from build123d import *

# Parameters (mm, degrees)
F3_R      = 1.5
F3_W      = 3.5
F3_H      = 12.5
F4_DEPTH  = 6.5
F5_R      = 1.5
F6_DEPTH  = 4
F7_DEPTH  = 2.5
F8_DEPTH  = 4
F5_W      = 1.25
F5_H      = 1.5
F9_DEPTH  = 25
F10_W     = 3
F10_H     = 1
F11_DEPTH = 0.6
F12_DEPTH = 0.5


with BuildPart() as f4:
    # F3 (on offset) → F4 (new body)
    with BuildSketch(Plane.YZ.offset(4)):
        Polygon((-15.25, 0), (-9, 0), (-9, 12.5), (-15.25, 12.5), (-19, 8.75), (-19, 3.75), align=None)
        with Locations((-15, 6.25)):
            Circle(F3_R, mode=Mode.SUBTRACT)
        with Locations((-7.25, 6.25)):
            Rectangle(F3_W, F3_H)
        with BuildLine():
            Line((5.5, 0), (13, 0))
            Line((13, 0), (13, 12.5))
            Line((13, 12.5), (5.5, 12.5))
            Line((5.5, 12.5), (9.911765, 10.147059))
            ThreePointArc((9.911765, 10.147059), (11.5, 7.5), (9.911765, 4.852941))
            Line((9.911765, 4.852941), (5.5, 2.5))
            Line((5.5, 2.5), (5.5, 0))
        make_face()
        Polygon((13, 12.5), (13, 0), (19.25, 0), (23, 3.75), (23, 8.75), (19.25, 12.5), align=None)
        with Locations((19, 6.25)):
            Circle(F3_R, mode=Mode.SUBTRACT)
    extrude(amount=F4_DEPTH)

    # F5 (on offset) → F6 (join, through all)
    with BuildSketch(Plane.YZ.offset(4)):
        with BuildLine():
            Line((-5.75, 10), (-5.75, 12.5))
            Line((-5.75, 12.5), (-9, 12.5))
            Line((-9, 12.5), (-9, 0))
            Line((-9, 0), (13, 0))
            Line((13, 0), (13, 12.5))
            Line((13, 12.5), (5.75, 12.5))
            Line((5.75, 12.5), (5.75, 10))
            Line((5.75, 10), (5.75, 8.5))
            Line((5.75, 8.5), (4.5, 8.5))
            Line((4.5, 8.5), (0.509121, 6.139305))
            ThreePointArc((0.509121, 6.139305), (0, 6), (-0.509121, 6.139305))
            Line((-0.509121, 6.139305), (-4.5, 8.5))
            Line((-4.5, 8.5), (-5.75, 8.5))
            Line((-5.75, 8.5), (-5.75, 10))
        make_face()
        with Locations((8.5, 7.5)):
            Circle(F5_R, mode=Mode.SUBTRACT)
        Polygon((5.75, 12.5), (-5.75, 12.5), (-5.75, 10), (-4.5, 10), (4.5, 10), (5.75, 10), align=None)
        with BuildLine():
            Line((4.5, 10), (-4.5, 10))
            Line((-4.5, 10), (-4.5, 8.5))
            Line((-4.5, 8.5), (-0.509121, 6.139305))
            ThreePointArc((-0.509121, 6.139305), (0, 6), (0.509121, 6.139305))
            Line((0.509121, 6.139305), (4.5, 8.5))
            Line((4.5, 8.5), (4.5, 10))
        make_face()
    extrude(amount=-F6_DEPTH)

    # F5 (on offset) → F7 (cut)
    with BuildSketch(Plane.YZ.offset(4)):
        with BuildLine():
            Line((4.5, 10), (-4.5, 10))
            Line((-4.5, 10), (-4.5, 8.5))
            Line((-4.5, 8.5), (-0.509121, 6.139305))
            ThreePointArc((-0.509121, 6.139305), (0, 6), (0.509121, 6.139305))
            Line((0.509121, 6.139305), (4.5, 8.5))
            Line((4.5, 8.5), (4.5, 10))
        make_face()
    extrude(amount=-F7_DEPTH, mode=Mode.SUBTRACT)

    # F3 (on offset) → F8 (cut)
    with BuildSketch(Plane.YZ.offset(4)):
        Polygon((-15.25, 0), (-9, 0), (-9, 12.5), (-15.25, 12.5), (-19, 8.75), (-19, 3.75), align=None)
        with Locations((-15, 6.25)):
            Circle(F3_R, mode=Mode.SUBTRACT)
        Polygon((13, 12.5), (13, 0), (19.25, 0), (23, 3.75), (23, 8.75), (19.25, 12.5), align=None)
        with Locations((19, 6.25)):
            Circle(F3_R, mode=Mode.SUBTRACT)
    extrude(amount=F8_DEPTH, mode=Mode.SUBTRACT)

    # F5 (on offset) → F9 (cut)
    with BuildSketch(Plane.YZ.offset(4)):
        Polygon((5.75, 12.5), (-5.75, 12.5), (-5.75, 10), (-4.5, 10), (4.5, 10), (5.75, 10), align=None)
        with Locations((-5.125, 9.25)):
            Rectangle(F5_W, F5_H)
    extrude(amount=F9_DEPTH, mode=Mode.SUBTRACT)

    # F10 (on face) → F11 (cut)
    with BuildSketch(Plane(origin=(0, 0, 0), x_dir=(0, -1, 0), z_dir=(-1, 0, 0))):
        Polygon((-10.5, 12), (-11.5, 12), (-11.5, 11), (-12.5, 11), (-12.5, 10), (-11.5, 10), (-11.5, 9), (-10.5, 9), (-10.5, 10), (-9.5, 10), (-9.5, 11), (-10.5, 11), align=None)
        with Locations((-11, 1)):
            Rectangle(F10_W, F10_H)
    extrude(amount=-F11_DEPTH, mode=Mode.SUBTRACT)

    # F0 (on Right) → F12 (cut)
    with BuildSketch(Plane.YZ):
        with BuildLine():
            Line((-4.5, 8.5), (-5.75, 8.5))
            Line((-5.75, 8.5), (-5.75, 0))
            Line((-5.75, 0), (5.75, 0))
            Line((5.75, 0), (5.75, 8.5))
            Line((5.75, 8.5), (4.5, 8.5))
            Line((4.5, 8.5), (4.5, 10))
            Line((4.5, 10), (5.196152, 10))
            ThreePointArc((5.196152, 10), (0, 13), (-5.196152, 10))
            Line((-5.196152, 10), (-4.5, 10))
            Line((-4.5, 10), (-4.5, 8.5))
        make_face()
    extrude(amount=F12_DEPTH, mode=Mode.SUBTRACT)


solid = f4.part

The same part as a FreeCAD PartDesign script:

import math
import FreeCAD as App
import Part
import Sketcher
from FreeCAD import Vector
Q = App.Units.Quantity


def add_polygon(sketch, points):
    """Adds a closed chain of lines whose ends are joined by coincident constraints."""
    first, n = sketch.GeometryCount, len(points)
    for a, b in zip(points, points[1:] + points[:1]):
        sketch.addGeometry(Part.LineSegment(App.Vector(*a, 0), App.Vector(*b, 0)), False)
    for i in range(n):
        sketch.addConstraint(Sketcher.Constraint("Coincident", first + i, 2, first + (i + 1) % n, 1))

doc = App.newDocument("Part")
body = doc.addObject("PartDesign::Body", "Body")
body.AllowCompound = True

sketch1 = body.newObject("Sketcher::SketchObject", "Sketch")
sketch1.AttachmentSupport = (doc.getObject("YZ_Plane"), [""])
sketch1.MapMode = "FlatFace"
sketch1.AttachmentOffset = App.Placement(Vector(0, 0, 4), App.Rotation())
add_polygon(sketch1, [(-15.2, 0), (-5.5, 0), (-5.5, 12.5), (-15.2, 12.5), (-19, 8.8), (-19, 3.8)])
sketch1.addGeometry(Part.Circle(Vector(-15, 6.2, 0), Vector(0, 0, 1), 1.5), False)
sketch1.addGeometry(Part.LineSegment(Vector(5.5, 0, 0), Vector(19.2, 0, 0)), False)
sketch1.addGeometry(Part.LineSegment(Vector(19.2, 0, 0), Vector(23, 3.8, 0)), False)
sketch1.addGeometry(Part.LineSegment(Vector(23, 3.8, 0), Vector(23, 8.8, 0)), False)
sketch1.addGeometry(Part.LineSegment(Vector(23, 8.8, 0), Vector(19.2, 12.5, 0)), False)
sketch1.addGeometry(Part.LineSegment(Vector(19.2, 12.5, 0), Vector(5.5, 12.5, 0)), False)
sketch1.addGeometry(Part.LineSegment(Vector(5.5, 12.5, 0), Vector(9.9, 10.1, 0)), False)
sketch1.addGeometry(Part.ArcOfCircle(Part.Circle(Vector(8.5, 7.5, 0), Vector(0, 0, 1), 3), math.radians(-62), math.radians(62)), False)
sketch1.addGeometry(Part.LineSegment(Vector(9.9, 4.9, 0), Vector(5.5, 2.5, 0)), False)
sketch1.addGeometry(Part.LineSegment(Vector(5.5, 2.5, 0), Vector(5.5, 0, 0)), False)
sketch1.addGeometry(Part.Circle(Vector(19, 6.2, 0), Vector(0, 0, 1), 1.5), False)
sketch1.addConstraint(Sketcher.Constraint("Coincident", 7, 2, 8, 1))
sketch1.addConstraint(Sketcher.Constraint("Coincident", 8, 2, 9, 1))
sketch1.addConstraint(Sketcher.Constraint("Coincident", 9, 2, 10, 1))
sketch1.addConstraint(Sketcher.Constraint("Coincident", 10, 2, 11, 1))
sketch1.addConstraint(Sketcher.Constraint("Coincident", 11, 2, 12, 1))
sketch1.addConstraint(Sketcher.Constraint("Tangent", 12, 2, 13, 2))
sketch1.addConstraint(Sketcher.Constraint("Tangent", 13, 1, 14, 1))
sketch1.addConstraint(Sketcher.Constraint("Coincident", 14, 2, 15, 1))
sketch1.addConstraint(Sketcher.Constraint("Coincident", 15, 2, 7, 1))
sketch1.addConstraint(Sketcher.Constraint("Horizontal", 0))
sketch1.addConstraint(Sketcher.Constraint("Vertical", 1))
sketch1.addConstraint(Sketcher.Constraint("Horizontal", 2))
sketch1.addConstraint(Sketcher.Constraint("Vertical", 4))
sketch1.addConstraint(Sketcher.Constraint("Horizontal", 7))
sketch1.addConstraint(Sketcher.Constraint("Vertical", 9))
sketch1.addConstraint(Sketcher.Constraint("Horizontal", 11))
sketch1.addConstraint(Sketcher.Constraint("Vertical", 15))
sketch1.addConstraint(Sketcher.Constraint("Equal", 6, 16))
sketch1.addConstraint(Sketcher.Constraint("Symmetric", 0, 2, 15, 2, -1, 1))
sketch1.addConstraint(Sketcher.Constraint("Symmetric", 1, 2, 11, 2, -2))
sketch1.addConstraint(Sketcher.Constraint("PointOnObject", 0, 2, -1))
sketch1.addConstraint(Sketcher.Constraint("Perpendicular", 3, 5))
sketch1.addConstraint(Sketcher.Constraint("Perpendicular", 5, 8))
sketch1.addConstraint(Sketcher.Constraint("Perpendicular", 8, 10))
sketch1.addConstraint(Sketcher.Constraint("Horizontal", 6, 3, 16, 3))
sketch1.addConstraint(Sketcher.Constraint("Horizontal", 4, 2, 8, 2))
sketch1.addConstraint(Sketcher.Constraint("Horizontal", 3, 2, 9, 2))
sketch1.addConstraint(Sketcher.Constraint("Vertical", 2, 2, 5, 2))
sketch1.addConstraint(Sketcher.Constraint("Vertical", 7, 2, 10, 2))
sketch1.addConstraint(Sketcher.Constraint("Vertical", 12, 2, 13, 1))
sketch1.addConstraint(Sketcher.Constraint("Diameter", 6, Q("3 mm")))
sketch1.addConstraint(Sketcher.Constraint("Radius", 13, Q("3.000001 mm")))
sketch1.addConstraint(Sketcher.Constraint("DistanceY", 4, 2, 4, 1, Q("5 mm")))
sketch1.addConstraint(Sketcher.Constraint("Distance", 12, Q("5 mm")))
sketch1.addConstraint(Sketcher.Constraint("DistanceY", 1, 1, 1, 2, Q("12.5 mm")))
sketch1.addConstraint(Sketcher.Constraint("DistanceY", 15, 2, 15, 1, Q("2.5 mm")))
sketch1.addConstraint(Sketcher.Constraint("DistanceX", 6, 3, -1, 1, Q("15 mm")))
sketch1.addConstraint(Sketcher.Constraint("DistanceX", -1, 1, 16, 3, Q("19 mm")))
sketch1.addConstraint(Sketcher.Constraint("DistanceX", 3, 2, -1, 1, Q("19 mm")))
sketch1.addConstraint(Sketcher.Constraint("DistanceX", -1, 1, 8, 2, Q("23 mm")))
sketch1.addConstraint(Sketcher.Constraint("DistanceX", 0, 2, 13, 3, Q("13.999999 mm")))
sketch1.addConstraint(Sketcher.Constraint("DistanceY", 6, 3, 3, 2, Q("2.5 mm")))
pad1 = body.newObject("PartDesign::Pad", "Pad")
pad1.Profile = sketch1
pad1.Length = 6.5

sketch2 = body.newObject("Sketcher::SketchObject", "Sketch001")
sketch2.AttachmentSupport = (doc.getObject("YZ_Plane"), [""])
sketch2.MapMode = "FlatFace"
sketch2.AttachmentOffset = App.Placement(Vector(0, 0, 4), App.Rotation())
add_polygon(sketch2, [(-9, 12.5), (-9, 0), (13, 0), (13, 12.5)])
add_polygon(sketch2, [(-5.8, 8.5), (-5.8, 10), (-4.5, 10), (-4.5, 8.5)])
add_polygon(sketch2, [(4.5, 10), (5.8, 10), (5.8, 8.5), (4.5, 8.5)])
sketch2.addGeometry(Part.Circle(Vector(8.5, 7.5, 0), Vector(0, 0, 1), 1.5), False)
sketch2.addConstraint(Sketcher.Constraint("Vertical", 0))
sketch2.addConstraint(Sketcher.Constraint("Horizontal", 1))
sketch2.addConstraint(Sketcher.Constraint("Vertical", 2))
sketch2.addConstraint(Sketcher.Constraint("Horizontal", 3))
sketch2.addConstraint(Sketcher.Constraint("Vertical", 4))
sketch2.addConstraint(Sketcher.Constraint("Horizontal", 5))
sketch2.addConstraint(Sketcher.Constraint("Vertical", 6))
sketch2.addConstraint(Sketcher.Constraint("Horizontal", 7))
sketch2.addConstraint(Sketcher.Constraint("Horizontal", 8))
sketch2.addConstraint(Sketcher.Constraint("Vertical", 9))
sketch2.addConstraint(Sketcher.Constraint("Horizontal", 10))
sketch2.addConstraint(Sketcher.Constraint("Vertical", 11))
sketch2.addConstraint(Sketcher.Constraint("Symmetric", 4, 2, 8, 2, -2))
sketch2.addConstraint(Sketcher.Constraint("Symmetric", 6, 2, 10, 2, -2))
sketch2.addConstraint(Sketcher.Constraint("PointOnObject", 0, 2, -1))
sketch2.addConstraint(Sketcher.Constraint("Diameter", 12, Q("3 mm")))
sketch2.addConstraint(Sketcher.Constraint("DistanceX", 1, 1, 1, 2, Q("22 mm")))
sketch2.addConstraint(Sketcher.Constraint("DistanceY", 0, 2, 0, 1, Q("12.5 mm")))
sketch2.addConstraint(Sketcher.Constraint("DistanceY", 4, 1, 4, 2, Q("1.5 mm")))
sketch2.addConstraint(Sketcher.Constraint("DistanceX", 0, 2, -1, 1, Q("9 mm")))
sketch2.addConstraint(Sketcher.Constraint("DistanceY", -1, 1, 4, 2, Q("10 mm")))
sketch2.addConstraint(Sketcher.Constraint("DistanceY", 12, 3, 2, 2, Q("5 mm")))
sketch2.addConstraint(Sketcher.Constraint("DistanceX", 5, 2, 12, 3, Q("13 mm")))
sketch2.addConstraint(Sketcher.Constraint("DistanceX", 10, 2, 12, 3, Q("4 mm")))
sketch2.addConstraint(Sketcher.Constraint("DistanceX", 5, 1, 5, 2, Q("1.25 mm")))
pad2 = body.newObject("PartDesign::Pad", "Pad001")
pad2.Profile = sketch2
pad2.Length = 4
pad2.Reversed = True

sketch3 = body.newObject("Sketcher::SketchObject", "Sketch002")
sketch3.AttachmentSupport = (doc.getObject("YZ_Plane"), [""])
sketch3.MapMode = "FlatFace"
sketch3.AttachmentOffset = App.Placement(Vector(0, 0, 4), App.Rotation())
sketch3.addGeometry(Part.LineSegment(Vector(4.5, 10, 0), Vector(-4.5, 10, 0)), False)
sketch3.addGeometry(Part.LineSegment(Vector(-4.5, 10, 0), Vector(-4.5, 8.5, 0)), False)
sketch3.addGeometry(Part.LineSegment(Vector(-4.5, 8.5, 0), Vector(-0.5, 6.1, 0)), False)
sketch3.addGeometry(Part.ArcOfCircle(Part.Circle(Vector(0, 7, 0), Vector(0, 0, 1), 1), math.radians(-121), math.radians(-59)), False)
sketch3.addGeometry(Part.LineSegment(Vector(0.5, 6.1, 0), Vector(4.5, 8.5, 0)), False)
sketch3.addGeometry(Part.LineSegment(Vector(4.5, 8.5, 0), Vector(4.5, 10, 0)), False)
sketch3.addConstraint(Sketcher.Constraint("Coincident", 0, 2, 1, 1))
sketch3.addConstraint(Sketcher.Constraint("Coincident", 1, 2, 2, 1))
sketch3.addConstraint(Sketcher.Constraint("Tangent", 2, 2, 3, 1))
sketch3.addConstraint(Sketcher.Constraint("Tangent", 3, 2, 4, 1))
sketch3.addConstraint(Sketcher.Constraint("Coincident", 4, 2, 5, 1))
sketch3.addConstraint(Sketcher.Constraint("Coincident", 5, 2, 0, 1))
sketch3.addConstraint(Sketcher.Constraint("Horizontal", 0))
sketch3.addConstraint(Sketcher.Constraint("Vertical", 1))
sketch3.addConstraint(Sketcher.Constraint("Vertical", 5))
sketch3.addConstraint(Sketcher.Constraint("Symmetric", 2, 2, 3, 2, -2))
sketch3.addConstraint(Sketcher.Constraint("Horizontal", 1, 2, 4, 2))
sketch3.addConstraint(Sketcher.Constraint("Radius", 3, Q("1 mm")))
sketch3.addConstraint(Sketcher.Constraint("DistanceX", 0, 2, 0, 1, Q("9 mm")))
sketch3.addConstraint(Sketcher.Constraint("DistanceY", 1, 2, 1, 1, Q("1.5 mm")))
sketch3.addConstraint(Sketcher.Constraint("DistanceY", -1, 1, 3, 3, Q("7 mm")))
sketch3.addConstraint(Sketcher.Constraint("DistanceY", -1, 1, 0, 2, Q("10 mm")))
pocket1 = body.newObject("PartDesign::Pocket", "Pocket")
pocket1.Profile = sketch3
pocket1.Length = 2.5

sketch4 = body.newObject("Sketcher::SketchObject", "Sketch003")
sketch4.AttachmentSupport = (doc.getObject("YZ_Plane"), [""])
sketch4.MapMode = "FlatFace"
sketch4.AttachmentOffset = App.Placement(Vector(0, 0, 4), App.Rotation())
add_polygon(sketch4, [(-15.2, 0), (-9, 0), (-9, 12.5), (-15.2, 12.5), (-19, 8.8), (-19, 3.8)])
sketch4.addGeometry(Part.Circle(Vector(-15, 6.2, 0), Vector(0, 0, 1), 1.5), False)
add_polygon(sketch4, [(13, 12.5), (13, 0), (19.2, 0), (23, 3.8), (23, 8.8), (19.2, 12.5)])
sketch4.addGeometry(Part.Circle(Vector(19, 6.2, 0), Vector(0, 0, 1), 1.5), False)
sketch4.addConstraint(Sketcher.Constraint("Horizontal", 0))
sketch4.addConstraint(Sketcher.Constraint("Vertical", 1))
sketch4.addConstraint(Sketcher.Constraint("Horizontal", 2))
sketch4.addConstraint(Sketcher.Constraint("Vertical", 4))
sketch4.addConstraint(Sketcher.Constraint("Vertical", 7))
sketch4.addConstraint(Sketcher.Constraint("Horizontal", 8))
sketch4.addConstraint(Sketcher.Constraint("Vertical", 10))
sketch4.addConstraint(Sketcher.Constraint("Horizontal", 12))
sketch4.addConstraint(Sketcher.Constraint("Equal", 6, 13))
sketch4.addConstraint(Sketcher.Constraint("PointOnObject", 0, 2, -1))
sketch4.addConstraint(Sketcher.Constraint("PointOnObject", 7, 2, -1))
sketch4.addConstraint(Sketcher.Constraint("Perpendicular", 3, 5))
sketch4.addConstraint(Sketcher.Constraint("Perpendicular", 5, 9))
sketch4.addConstraint(Sketcher.Constraint("Perpendicular", 9, 11))
sketch4.addConstraint(Sketcher.Constraint("Horizontal", 6, 3, 13, 3))
sketch4.addConstraint(Sketcher.Constraint("Horizontal", 4, 2, 9, 2))
sketch4.addConstraint(Sketcher.Constraint("Horizontal", 3, 2, 10, 2))
sketch4.addConstraint(Sketcher.Constraint("Horizontal", 2, 2, 11, 2))
sketch4.addConstraint(Sketcher.Constraint("Vertical", 2, 2, 5, 2))
sketch4.addConstraint(Sketcher.Constraint("Vertical", 8, 2, 11, 2))
sketch4.addConstraint(Sketcher.Constraint("Equal", 2, 8))
sketch4.addConstraint(Sketcher.Constraint("Diameter", 6, Q("3 mm")))
sketch4.addConstraint(Sketcher.Constraint("DistanceY", 4, 2, 4, 1, Q("5 mm")))
sketch4.addConstraint(Sketcher.Constraint("DistanceY", 1, 1, 1, 2, Q("12.5 mm")))
sketch4.addConstraint(Sketcher.Constraint("DistanceX", 6, 3, -1, 1, Q("15 mm")))
sketch4.addConstraint(Sketcher.Constraint("DistanceX", -1, 1, 13, 3, Q("19 mm")))
sketch4.addConstraint(Sketcher.Constraint("DistanceX", 0, 2, -1, 1, Q("9 mm")))
sketch4.addConstraint(Sketcher.Constraint("DistanceX", 3, 2, -1, 1, Q("19 mm")))
sketch4.addConstraint(Sketcher.Constraint("DistanceX", -1, 1, 7, 2, Q("13 mm")))
sketch4.addConstraint(Sketcher.Constraint("DistanceY", 6, 3, 3, 2, Q("2.5 mm")))
pocket2 = body.newObject("PartDesign::Pocket", "Pocket001")
pocket2.Profile = sketch4
pocket2.Length = 4
pocket2.Reversed = True

sketch5 = body.newObject("Sketcher::SketchObject", "Sketch004")
sketch5.AttachmentSupport = (doc.getObject("YZ_Plane"), [""])
sketch5.MapMode = "FlatFace"
sketch5.AttachmentOffset = App.Placement(Vector(0, 0, 4), App.Rotation())
add_polygon(sketch5, [(5.8, 12.5), (-5.8, 12.5), (-5.8, 8.5), (-4.5, 8.5), (-4.5, 10), (5.8, 10)])
sketch5.addConstraint(Sketcher.Constraint("Horizontal", 0))
sketch5.addConstraint(Sketcher.Constraint("Vertical", 1))
sketch5.addConstraint(Sketcher.Constraint("Horizontal", 2))
sketch5.addConstraint(Sketcher.Constraint("Vertical", 3))
sketch5.addConstraint(Sketcher.Constraint("Horizontal", 4))
sketch5.addConstraint(Sketcher.Constraint("Vertical", 5))
sketch5.addConstraint(Sketcher.Constraint("DistanceY", 1, 2, 1, 1, Q("4 mm")))
sketch5.addConstraint(Sketcher.Constraint("DistanceX", 0, 2, 0, 1, Q("11.5 mm")))
sketch5.addConstraint(Sketcher.Constraint("DistanceY", 3, 1, 3, 2, Q("1.5 mm")))
sketch5.addConstraint(Sketcher.Constraint("DistanceY", -1, 1, 3, 2, Q("10 mm")))
sketch5.addConstraint(Sketcher.Constraint("DistanceX", 2, 1, 2, 2, Q("1.25 mm")))
sketch5.addConstraint(Sketcher.Constraint("DistanceX", 2, 2, -1, 1, Q("4.5 mm")))
pocket3 = body.newObject("PartDesign::Pocket", "Pocket002")
pocket3.Profile = sketch5
pocket3.Length = 25
pocket3.Reversed = True

sketch6 = body.newObject("Sketcher::SketchObject", "Sketch005")
sketch6.AttachmentSupport = (doc.getObject("YZ_Plane"), [""])
sketch6.MapMode = "FlatFace"
add_polygon(sketch6, [(10.5, 12), (11.5, 12), (11.5, 11), (12.5, 11), (12.5, 10), (11.5, 10), (11.5, 9), (10.5, 9), (10.5, 10), (9.5, 10), (9.5, 11), (10.5, 11)])
add_polygon(sketch6, [(12.5, 1.5), (12.5, 0.5), (9.5, 0.5), (9.5, 1.5)])
sketch6.addConstraint(Sketcher.Constraint("Horizontal", 0))
sketch6.addConstraint(Sketcher.Constraint("Vertical", 1))
sketch6.addConstraint(Sketcher.Constraint("Horizontal", 2))
sketch6.addConstraint(Sketcher.Constraint("Vertical", 3))
sketch6.addConstraint(Sketcher.Constraint("Horizontal", 4))
sketch6.addConstraint(Sketcher.Constraint("Vertical", 5))
sketch6.addConstraint(Sketcher.Constraint("Horizontal", 6))
sketch6.addConstraint(Sketcher.Constraint("Vertical", 7))
sketch6.addConstraint(Sketcher.Constraint("Horizontal", 8))
sketch6.addConstraint(Sketcher.Constraint("Vertical", 9))
sketch6.addConstraint(Sketcher.Constraint("Horizontal", 10))
sketch6.addConstraint(Sketcher.Constraint("Vertical", 11))
sketch6.addConstraint(Sketcher.Constraint("Vertical", 12))
sketch6.addConstraint(Sketcher.Constraint("Horizontal", 13))
sketch6.addConstraint(Sketcher.Constraint("Vertical", 14))
sketch6.addConstraint(Sketcher.Constraint("Horizontal", 15))
sketch6.addConstraint(Sketcher.Constraint("Horizontal", 4, 2, 7, 2))
sketch6.addConstraint(Sketcher.Constraint("Horizontal", 2, 2, 9, 2))
sketch6.addConstraint(Sketcher.Constraint("Vertical", 1, 2, 4, 2))
sketch6.addConstraint(Sketcher.Constraint("Vertical", 7, 2, 10, 2))
sketch6.addConstraint(Sketcher.Constraint("Vertical", 3, 2, 12, 2))
sketch6.addConstraint(Sketcher.Constraint("Vertical", 9, 2, 13, 2))
sketch6.addConstraint(Sketcher.Constraint("Equal", 0, 2))
sketch6.addConstraint(Sketcher.Constraint("Equal", 6, 8))
sketch6.addConstraint(Sketcher.Constraint("Equal", 10, 1))
sketch6.addConstraint(Sketcher.Constraint("Equal", 1, 3))
sketch6.addConstraint(Sketcher.Constraint("Equal", 3, 5))
sketch6.addConstraint(Sketcher.Constraint("Equal", 11, 12))
sketch6.addConstraint(Sketcher.Constraint("DistanceX", 0, 1, 0, 2, Q("1 mm")))
sketch6.addConstraint(Sketcher.Constraint("DistanceY", -1, 1, 0, 2, Q("12 mm")))
sketch6.addConstraint(Sketcher.Constraint("DistanceX", -1, 1, 0, 2, Q("11.5 mm")))
sketch6.addConstraint(Sketcher.Constraint("DistanceY", -1, 1, 12, 2, Q("0.5 mm")))
pocket4 = body.newObject("PartDesign::Pocket", "Pocket003")
pocket4.Profile = sketch6
pocket4.Length = 0.6
pocket4.Reversed = True

sketch7 = body.newObject("Sketcher::SketchObject", "Sketch006")
sketch7.AttachmentSupport = (doc.getObject("YZ_Plane"), [""])
sketch7.MapMode = "FlatFace"
sketch7.addGeometry(Part.LineSegment(Vector(-4.5, 8.5, 0), Vector(-5.8, 8.5, 0)), False)
sketch7.addGeometry(Part.LineSegment(Vector(-5.8, 8.5, 0), Vector(-5.8, 0, 0)), False)
sketch7.addGeometry(Part.LineSegment(Vector(-5.8, 0, 0), Vector(5.8, 0, 0)), False)
sketch7.addGeometry(Part.LineSegment(Vector(5.8, 0, 0), Vector(5.8, 8.5, 0)), False)
sketch7.addGeometry(Part.LineSegment(Vector(5.8, 8.5, 0), Vector(4.5, 8.5, 0)), False)
sketch7.addGeometry(Part.LineSegment(Vector(4.5, 8.5, 0), Vector(4.5, 10, 0)), False)
sketch7.addGeometry(Part.LineSegment(Vector(4.5, 10, 0), Vector(5.2, 10, 0)), False)
sketch7.addGeometry(Part.ArcOfCircle(Part.Circle(Vector(0, 7, 0), Vector(0, 0, 1), 6), math.radians(30), math.radians(150)), False)
sketch7.addGeometry(Part.LineSegment(Vector(-5.2, 10, 0), Vector(-4.5, 10, 0)), False)
sketch7.addGeometry(Part.LineSegment(Vector(-4.5, 10, 0), Vector(-4.5, 8.5, 0)), False)
sketch7.addConstraint(Sketcher.Constraint("Coincident", 0, 2, 1, 1))
sketch7.addConstraint(Sketcher.Constraint("Coincident", 1, 2, 2, 1))
sketch7.addConstraint(Sketcher.Constraint("Coincident", 2, 2, 3, 1))
sketch7.addConstraint(Sketcher.Constraint("Coincident", 3, 2, 4, 1))
sketch7.addConstraint(Sketcher.Constraint("Coincident", 4, 2, 5, 1))
sketch7.addConstraint(Sketcher.Constraint("Coincident", 5, 2, 6, 1))
sketch7.addConstraint(Sketcher.Constraint("Coincident", 6, 2, 7, 1))
sketch7.addConstraint(Sketcher.Constraint("Coincident", 7, 2, 8, 1))
sketch7.addConstraint(Sketcher.Constraint("Coincident", 8, 2, 9, 1))
sketch7.addConstraint(Sketcher.Constraint("Coincident", 9, 2, 0, 1))
sketch7.addConstraint(Sketcher.Constraint("Horizontal", 0))
sketch7.addConstraint(Sketcher.Constraint("Vertical", 1))
sketch7.addConstraint(Sketcher.Constraint("Horizontal", 2))
sketch7.addConstraint(Sketcher.Constraint("Vertical", 3))
sketch7.addConstraint(Sketcher.Constraint("Horizontal", 4))
sketch7.addConstraint(Sketcher.Constraint("Vertical", 5))
sketch7.addConstraint(Sketcher.Constraint("Horizontal", 6))
sketch7.addConstraint(Sketcher.Constraint("Horizontal", 8))
sketch7.addConstraint(Sketcher.Constraint("Vertical", 9))
sketch7.addConstraint(Sketcher.Constraint("Symmetric", 1, 2, 2, 2, -1, 1))
sketch7.addConstraint(Sketcher.Constraint("Symmetric", 6, 2, 7, 2, -2))
sketch7.addConstraint(Sketcher.Constraint("Symmetric", 4, 2, 9, 2, -2))
sketch7.addConstraint(Sketcher.Constraint("Radius", 7, Q("5.999999 mm")))
sketch7.addConstraint(Sketcher.Constraint("DistanceX", 2, 1, 2, 2, Q("11.5 mm")))
sketch7.addConstraint(Sketcher.Constraint("DistanceY", 1, 2, 1, 1, Q("8.5 mm")))
sketch7.addConstraint(Sketcher.Constraint("DistanceY", 5, 1, 5, 2, Q("1.5 mm")))
sketch7.addConstraint(Sketcher.Constraint("DistanceY", -1, 1, 7, 3, Q("7.000001 mm")))
sketch7.addConstraint(Sketcher.Constraint("DistanceX", 8, 2, 5, 2, Q("9 mm")))
pocket5 = body.newObject("PartDesign::Pocket", "Pocket004")
pocket5.Profile = sketch7
pocket5.Length = 0.5
pocket5.Reversed = True

doc.recompute()
